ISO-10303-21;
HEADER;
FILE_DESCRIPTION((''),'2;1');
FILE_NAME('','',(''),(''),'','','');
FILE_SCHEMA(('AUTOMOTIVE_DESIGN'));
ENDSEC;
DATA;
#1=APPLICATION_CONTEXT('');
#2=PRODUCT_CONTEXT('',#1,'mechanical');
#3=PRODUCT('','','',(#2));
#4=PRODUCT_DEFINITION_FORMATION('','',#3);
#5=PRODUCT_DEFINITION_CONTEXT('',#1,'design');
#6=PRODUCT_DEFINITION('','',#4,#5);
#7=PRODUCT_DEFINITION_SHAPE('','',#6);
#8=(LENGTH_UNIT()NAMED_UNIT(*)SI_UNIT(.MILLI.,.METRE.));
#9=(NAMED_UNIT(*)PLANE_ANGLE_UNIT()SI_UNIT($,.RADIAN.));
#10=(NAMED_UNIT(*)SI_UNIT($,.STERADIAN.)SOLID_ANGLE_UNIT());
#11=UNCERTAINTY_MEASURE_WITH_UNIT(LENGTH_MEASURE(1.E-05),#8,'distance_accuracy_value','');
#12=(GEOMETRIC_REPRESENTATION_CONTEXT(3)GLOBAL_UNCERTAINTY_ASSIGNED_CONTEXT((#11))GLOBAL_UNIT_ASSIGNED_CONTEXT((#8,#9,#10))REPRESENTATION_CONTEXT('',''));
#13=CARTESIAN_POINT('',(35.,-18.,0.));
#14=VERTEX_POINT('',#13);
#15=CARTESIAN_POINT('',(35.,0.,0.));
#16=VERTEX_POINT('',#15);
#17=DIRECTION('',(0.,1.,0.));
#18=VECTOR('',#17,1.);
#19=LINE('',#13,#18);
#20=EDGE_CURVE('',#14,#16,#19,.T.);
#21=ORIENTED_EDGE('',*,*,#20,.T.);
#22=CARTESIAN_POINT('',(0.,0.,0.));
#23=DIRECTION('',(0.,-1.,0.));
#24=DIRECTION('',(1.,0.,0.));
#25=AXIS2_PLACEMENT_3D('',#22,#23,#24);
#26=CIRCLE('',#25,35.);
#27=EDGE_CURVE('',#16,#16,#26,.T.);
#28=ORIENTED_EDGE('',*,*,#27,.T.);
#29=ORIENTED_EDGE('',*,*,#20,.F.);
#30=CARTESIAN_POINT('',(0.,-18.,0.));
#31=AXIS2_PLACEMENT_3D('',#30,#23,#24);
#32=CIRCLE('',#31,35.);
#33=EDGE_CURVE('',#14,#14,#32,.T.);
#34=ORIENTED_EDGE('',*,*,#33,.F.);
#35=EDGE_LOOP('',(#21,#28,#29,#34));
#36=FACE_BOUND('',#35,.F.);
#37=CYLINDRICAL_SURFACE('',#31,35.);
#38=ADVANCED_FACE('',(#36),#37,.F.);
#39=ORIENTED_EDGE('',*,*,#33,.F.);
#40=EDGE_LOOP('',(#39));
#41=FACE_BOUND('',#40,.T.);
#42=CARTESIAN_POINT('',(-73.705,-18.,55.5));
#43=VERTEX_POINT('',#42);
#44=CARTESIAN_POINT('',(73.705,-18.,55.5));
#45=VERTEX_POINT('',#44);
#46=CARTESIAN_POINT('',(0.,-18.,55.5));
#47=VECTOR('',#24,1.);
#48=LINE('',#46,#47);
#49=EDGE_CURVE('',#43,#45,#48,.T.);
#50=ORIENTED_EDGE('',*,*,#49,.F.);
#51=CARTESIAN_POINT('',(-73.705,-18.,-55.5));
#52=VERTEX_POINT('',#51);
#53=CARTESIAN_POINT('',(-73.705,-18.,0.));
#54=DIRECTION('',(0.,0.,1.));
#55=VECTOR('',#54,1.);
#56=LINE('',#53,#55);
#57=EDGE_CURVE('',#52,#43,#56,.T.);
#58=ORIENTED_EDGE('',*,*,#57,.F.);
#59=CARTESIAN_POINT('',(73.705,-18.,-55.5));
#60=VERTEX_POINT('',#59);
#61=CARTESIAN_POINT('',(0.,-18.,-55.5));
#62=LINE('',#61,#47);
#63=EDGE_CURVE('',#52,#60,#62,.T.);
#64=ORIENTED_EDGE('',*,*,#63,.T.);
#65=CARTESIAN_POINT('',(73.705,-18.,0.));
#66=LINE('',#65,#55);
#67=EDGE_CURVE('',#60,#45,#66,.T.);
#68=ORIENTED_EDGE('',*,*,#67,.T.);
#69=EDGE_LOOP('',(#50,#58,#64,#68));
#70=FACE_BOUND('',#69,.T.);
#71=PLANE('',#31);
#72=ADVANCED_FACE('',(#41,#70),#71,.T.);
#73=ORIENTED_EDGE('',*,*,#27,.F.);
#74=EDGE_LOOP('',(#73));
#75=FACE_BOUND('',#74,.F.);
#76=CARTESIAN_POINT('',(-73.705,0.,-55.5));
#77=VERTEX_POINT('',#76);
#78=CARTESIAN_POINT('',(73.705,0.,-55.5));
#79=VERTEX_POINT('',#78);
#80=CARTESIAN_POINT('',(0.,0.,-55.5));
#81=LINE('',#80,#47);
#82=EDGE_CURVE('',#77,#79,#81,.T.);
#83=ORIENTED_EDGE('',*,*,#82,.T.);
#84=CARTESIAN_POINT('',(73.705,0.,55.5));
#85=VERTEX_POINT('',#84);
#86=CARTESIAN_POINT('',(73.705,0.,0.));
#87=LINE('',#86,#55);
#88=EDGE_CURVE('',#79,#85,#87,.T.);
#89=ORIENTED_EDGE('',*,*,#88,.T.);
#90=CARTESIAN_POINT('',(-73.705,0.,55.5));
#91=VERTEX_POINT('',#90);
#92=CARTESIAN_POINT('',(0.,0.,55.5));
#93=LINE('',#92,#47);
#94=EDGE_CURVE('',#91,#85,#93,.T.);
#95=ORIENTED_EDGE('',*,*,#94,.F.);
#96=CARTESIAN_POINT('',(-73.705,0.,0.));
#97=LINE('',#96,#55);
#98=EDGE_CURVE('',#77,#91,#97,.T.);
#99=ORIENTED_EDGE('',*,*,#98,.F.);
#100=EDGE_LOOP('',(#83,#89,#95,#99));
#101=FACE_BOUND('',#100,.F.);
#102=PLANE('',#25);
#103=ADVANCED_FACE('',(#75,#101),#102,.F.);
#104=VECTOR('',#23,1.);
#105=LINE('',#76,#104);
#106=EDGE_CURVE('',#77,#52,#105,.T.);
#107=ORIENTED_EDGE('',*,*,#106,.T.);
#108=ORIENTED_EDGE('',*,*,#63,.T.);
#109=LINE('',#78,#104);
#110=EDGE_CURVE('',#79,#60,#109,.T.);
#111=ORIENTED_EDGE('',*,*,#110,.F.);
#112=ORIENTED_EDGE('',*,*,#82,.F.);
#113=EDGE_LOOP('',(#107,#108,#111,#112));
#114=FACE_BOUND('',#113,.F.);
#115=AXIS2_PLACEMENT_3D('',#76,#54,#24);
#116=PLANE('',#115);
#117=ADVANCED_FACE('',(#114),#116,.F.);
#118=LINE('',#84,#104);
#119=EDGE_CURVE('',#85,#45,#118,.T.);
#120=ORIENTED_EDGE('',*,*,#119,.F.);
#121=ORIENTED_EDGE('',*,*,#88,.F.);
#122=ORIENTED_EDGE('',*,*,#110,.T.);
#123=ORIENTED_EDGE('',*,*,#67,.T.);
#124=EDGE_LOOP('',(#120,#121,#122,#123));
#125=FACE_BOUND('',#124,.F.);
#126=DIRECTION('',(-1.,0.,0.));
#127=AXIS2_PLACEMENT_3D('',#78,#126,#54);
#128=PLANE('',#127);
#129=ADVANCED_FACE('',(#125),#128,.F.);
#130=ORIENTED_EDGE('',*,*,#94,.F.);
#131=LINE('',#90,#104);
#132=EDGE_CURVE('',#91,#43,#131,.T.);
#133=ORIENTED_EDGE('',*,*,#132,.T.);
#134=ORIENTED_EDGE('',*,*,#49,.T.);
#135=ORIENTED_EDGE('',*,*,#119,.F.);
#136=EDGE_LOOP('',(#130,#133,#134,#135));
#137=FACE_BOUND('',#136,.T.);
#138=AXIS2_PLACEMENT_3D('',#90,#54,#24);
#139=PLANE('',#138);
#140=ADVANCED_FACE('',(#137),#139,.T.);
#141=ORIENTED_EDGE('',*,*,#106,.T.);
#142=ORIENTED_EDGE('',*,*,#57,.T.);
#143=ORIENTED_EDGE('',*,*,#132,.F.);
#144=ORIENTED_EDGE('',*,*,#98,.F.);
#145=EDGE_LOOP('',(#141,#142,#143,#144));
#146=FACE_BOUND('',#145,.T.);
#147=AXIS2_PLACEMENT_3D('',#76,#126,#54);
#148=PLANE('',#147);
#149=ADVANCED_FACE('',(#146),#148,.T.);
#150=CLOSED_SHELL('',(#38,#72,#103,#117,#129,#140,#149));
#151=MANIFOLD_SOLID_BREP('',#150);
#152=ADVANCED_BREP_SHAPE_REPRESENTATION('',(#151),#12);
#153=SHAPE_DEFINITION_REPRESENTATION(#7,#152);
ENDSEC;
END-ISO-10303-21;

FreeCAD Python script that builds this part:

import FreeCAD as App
import Part
import Sketcher
from FreeCAD import Vector
Q = App.Units.Quantity


def add_polygon(sketch, points):
    """Adds a closed chain of lines whose ends are joined by coincident constraints."""
    first, n = sketch.GeometryCount, len(points)
    for a, b in zip(points, points[1:] + points[:1]):
        sketch.addGeometry(Part.LineSegment(App.Vector(*a, 0), App.Vector(*b, 0)), False)
    for i in range(n):
        sketch.addConstraint(Sketcher.Constraint("Coincident", first + i, 2, first + (i + 1) % n, 1))

doc = App.newDocument("Part")
params = doc.addObject("Spreadsheet::Sheet", "Params")
for row, (alias, value) in enumerate([
    ("sketch1_height", "111 mm"),
    ("sketch1_width", "147.41 mm"),
    ("pad1_length", "18 mm"),
    ("sketch2_diameter", "70 mm"),
    ("pocket1_length", "18 mm"),
], start=1):
    params.set(f"A{row}", alias)
    params.set(f"B{row}", "=" + value)
    params.setAlias(f"B{row}", alias)

body = doc.addObject("PartDesign::Body", "Body")

# Sketch on XZ plane
sketch1 = doc.addObject("Sketcher::SketchObject", "Sketch")
body.addObject(sketch1)
sketch1.AttachmentSupport = (doc.XZ_Plane, [""])
sketch1.MapMode = "FlatFace"
add_polygon(sketch1, [(-74, 56), (-74, -56), (74, -56), (74, 56)])  # lines 0-3
sketch1.addConstraint([
    Sketcher.Constraint("Vertical", 0),
    Sketcher.Constraint("Horizontal", 1),
    Sketcher.Constraint("Vertical", 2),
    Sketcher.Constraint("Horizontal", 3),
    Sketcher.Constraint("Symmetric", 0, 2, 2, 2, -1, 1),
    Sketcher.Constraint("DistanceY", 0, 2, 0, 1, Q("111 mm")),
    Sketcher.Constraint("DistanceX", 1, 1, 1, 2, Q("147.41 mm")),
])
sketch1.setExpression("Constraints[9]", "Params.sketch1_height")
sketch1.setExpression("Constraints[10]", "Params.sketch1_width")
pad1 = doc.addObject("PartDesign::Pad", "Pad")
body.addObject(pad1)
pad1.Profile = sketch1
pad1.setExpression("Length", "Params.pad1_length")

# Sketch on XZ plane
sketch2 = doc.addObject("Sketcher::SketchObject", "Sketch001")
body.addObject(sketch2)
sketch2.AttachmentSupport = (doc.XZ_Plane, [""])
sketch2.MapMode = "FlatFace"
sketch2.AttachmentOffset = App.Placement(Vector(0, 0, 18), App.Rotation())
sketch2.addGeometry(Part.Circle(Vector(0, 0, 0), Vector(0, 0, 1), 35), False)
sketch2.addConstraint([
    Sketcher.Constraint("Coincident", 0, 3, -1, 1),
    Sketcher.Constraint("Diameter", 0, Q("70 mm")),
])
sketch2.setExpression("Constraints[1]", "Params.sketch2_diameter")
pocket1 = doc.addObject("PartDesign::Pocket", "Pocket")
body.addObject(pocket1)
pocket1.Profile = sketch2
pocket1.setExpression("Length", "Params.pocket1_length")

doc.recompute()
